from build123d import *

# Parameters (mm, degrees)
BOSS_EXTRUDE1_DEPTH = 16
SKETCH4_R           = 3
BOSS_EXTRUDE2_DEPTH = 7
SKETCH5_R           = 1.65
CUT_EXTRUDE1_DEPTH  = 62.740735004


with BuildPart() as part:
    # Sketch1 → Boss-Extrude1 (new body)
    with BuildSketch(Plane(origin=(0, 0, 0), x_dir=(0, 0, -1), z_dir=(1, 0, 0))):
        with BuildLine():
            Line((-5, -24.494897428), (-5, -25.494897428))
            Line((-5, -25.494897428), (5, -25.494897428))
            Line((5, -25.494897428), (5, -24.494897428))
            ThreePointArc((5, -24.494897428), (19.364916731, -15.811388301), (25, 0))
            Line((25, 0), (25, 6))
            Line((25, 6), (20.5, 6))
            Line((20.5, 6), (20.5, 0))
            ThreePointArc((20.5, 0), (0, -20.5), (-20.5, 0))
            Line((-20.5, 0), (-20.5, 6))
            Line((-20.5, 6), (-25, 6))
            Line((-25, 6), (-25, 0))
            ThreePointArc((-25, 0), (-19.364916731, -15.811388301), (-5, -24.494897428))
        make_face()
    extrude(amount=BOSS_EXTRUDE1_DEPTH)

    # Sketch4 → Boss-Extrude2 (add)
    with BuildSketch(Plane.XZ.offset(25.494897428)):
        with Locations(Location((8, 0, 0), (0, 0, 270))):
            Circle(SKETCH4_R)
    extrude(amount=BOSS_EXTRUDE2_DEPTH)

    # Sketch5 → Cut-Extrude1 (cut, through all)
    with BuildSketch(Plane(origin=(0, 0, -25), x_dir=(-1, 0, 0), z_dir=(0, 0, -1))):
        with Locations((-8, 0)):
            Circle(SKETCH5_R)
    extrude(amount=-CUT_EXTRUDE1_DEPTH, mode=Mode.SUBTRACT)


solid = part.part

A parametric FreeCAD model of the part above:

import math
import FreeCAD as App
import Part
import Sketcher

V = App.Vector

doc = App.newDocument("Part")
body = doc.addObject("PartDesign::Body", "Body")

# Sketch on YZ plane
sketch1 = body.newObject("Sketcher::SketchObject", "Sketch")
sketch1.AttachmentSupport = (doc.getObject("YZ_Plane"), [""])
sketch1.MapMode = "FlatFace"
sketch1.addGeometry(Part.LineSegment(V(-24.5, 5, 0), V(-25.5, 5, 0)), False)
sketch1.addGeometry(Part.LineSegment(V(-25.5, 5, 0), V(-25.5, -5, 0)), False)
sketch1.addGeometry(Part.LineSegment(V(-25.5, -5, 0), V(-24.5, -5, 0)), False)
sketch1.addGeometry(Part.ArcOfCircle(Part.Circle(V(0, 0, 0), V(0, 0, 1), 25), math.radians(-168), math.radians(-90)), False)
sketch1.addGeometry(Part.LineSegment(V(0, -25, 0), V(6, -25, 0)), False)
sketch1.addGeometry(Part.LineSegment(V(6, -25, 0), V(6, -20.5, 0)), False)
sketch1.addGeometry(Part.LineSegment(V(6, -20.5, 0), V(0, -20.5, 0)), False)
sketch1.addGeometry(Part.ArcOfCircle(Part.Circle(V(0, 0, 0), V(0, 0, 1), 20.5), math.radians(90), math.radians(270)), False)
sketch1.addGeometry(Part.LineSegment(V(0, 20.5, 0), V(6, 20.5, 0)), False)
sketch1.addGeometry(Part.LineSegment(V(6, 20.5, 0), V(6, 25, 0)), False)
sketch1.addGeometry(Part.LineSegment(V(6, 25, 0), V(0, 25, 0)), False)
sketch1.addGeometry(Part.ArcOfCircle(Part.Circle(V(0, 0, 0), V(0, 0, 1), 25), math.radians(90), math.radians(168)), False)
sketch1.addConstraint(Sketcher.Constraint("Coincident", 0, 2, 1, 1))
sketch1.addConstraint(Sketcher.Constraint("Coincident", 1, 2, 2, 1))
sketch1.addConstraint(Sketcher.Constraint("Coincident", 2, 2, 3, 1))
sketch1.addConstraint(Sketcher.Constraint("Tangent", 3, 2, 4, 1))
sketch1.addConstraint(Sketcher.Constraint("Coincident", 4, 2, 5, 1))
sketch1.addConstraint(Sketcher.Constraint("Coincident", 5, 2, 6, 1))
sketch1.addConstraint(Sketcher.Constraint("Tangent", 6, 2, 7, 2))
sketch1.addConstraint(Sketcher.Constraint("Tangent", 7, 1, 8, 1))
sketch1.addConstraint(Sketcher.Constraint("Coincident", 8, 2, 9, 1))
sketch1.addConstraint(Sketcher.Constraint("Coincident", 9, 2, 10, 1))
sketch1.addConstraint(Sketcher.Constraint("Tangent", 10, 2, 11, 1))
sketch1.addConstraint(Sketcher.Constraint("Coincident", 11, 2, 0, 1))
sketch1.addConstraint(Sketcher.Constraint("Horizontal", 0))
sketch1.addConstraint(Sketcher.Constraint("Vertical", 1))
sketch1.addConstraint(Sketcher.Constraint("Horizontal", 2))
sketch1.addConstraint(Sketcher.Constraint("Horizontal", 4))
sketch1.addConstraint(Sketcher.Constraint("Vertical", 5))
sketch1.addConstraint(Sketcher.Constraint("Horizontal", 6))
sketch1.addConstraint(Sketcher.Constraint("Horizontal", 8))
sketch1.addConstraint(Sketcher.Constraint("Vertical", 9))
sketch1.addConstraint(Sketcher.Constraint("Horizontal", 10))
sketch1.addConstraint(Sketcher.Constraint("Coincident", 3, 3, -1, 1))
sketch1.addConstraint(Sketcher.Constraint("Coincident", 7, 3, -1, 1))
sketch1.addConstraint(Sketcher.Constraint("Coincident", 11, 3, -1, 1))
sketch1.addConstraint(Sketcher.Constraint("Equal", 3, 11))
sketch1.addConstraint(Sketcher.Constraint("Vertical", 5, 2, 8, 2))
sketch1.addConstraint(Sketcher.Constraint("Vertical", 2, 2, 11, 2))
sketch1.addConstraint(Sketcher.Constraint("Radius", 3, 25.0))
sketch1.addConstraint(Sketcher.Constraint("Radius", 7, 20.5))
sketch1.addConstraint(Sketcher.Constraint("DistanceX", 0, 2, 0, 1, 1.0))
sketch1.addConstraint(Sketcher.Constraint("DistanceX", 4, 1, 4, 2, 6.0))
sketch1.addConstraint(Sketcher.Constraint("DistanceY", 1, 2, 1, 1, 10.0))
pad1 = body.newObject("PartDesign::Pad", "Pad")
pad1.Profile = sketch1
pad1.Length = 16

# Sketch on XZ plane
sketch2 = body.newObject("Sketcher::SketchObject", "Sketch001")
sketch2.AttachmentSupport = (doc.getObject("XZ_Plane"), [""])
sketch2.MapMode = "FlatFace"
sketch2.AttachmentOffset = App.Placement(V(0, 0, 25.494897), App.Rotation())
sketch2.addGeometry(Part.Circle(V(8, 0, 0), V(0, 0, 1), 3), False)
sketch2.addConstraint(Sketcher.Constraint("PointOnObject", 0, 3, -1))
sketch2.addConstraint(Sketcher.Constraint("Diameter", 0, 6.0))
sketch2.addConstraint(Sketcher.Constraint("DistanceX", -1, 1, 0, 3, 8.0))
pad2 = body.newObject("PartDesign::Pad", "Pad001")
pad2.Profile = sketch2
pad2.Length = 7

# Sketch on XY plane
sketch3 = body.newObject("Sketcher::SketchObject", "Sketch002")
sketch3.AttachmentSupport = (doc.getObject("XY_Plane"), [""])
sketch3.MapMode = "FlatFace"
sketch3.AttachmentOffset = App.Placement(V(0, 0, -25), App.Rotation())
sketch3.addGeometry(Part.Circle(V(8, 0, 0), V(0, 0, 1), 1.6), False)
sketch3.addConstraint(Sketcher.Constraint("PointOnObject", 0, 3, -1))
sketch3.addConstraint(Sketcher.Constraint("Diameter", 0, 3.3))
sketch3.addConstraint(Sketcher.Constraint("DistanceX", -1, 1, 0, 3, 8.0))
pocket1 = body.newObject("PartDesign::Pocket", "Pocket")
pocket1.Profile = sketch3
pocket1.Type = "ThroughAll"
pocket1.Reversed = True

doc.recompute()
